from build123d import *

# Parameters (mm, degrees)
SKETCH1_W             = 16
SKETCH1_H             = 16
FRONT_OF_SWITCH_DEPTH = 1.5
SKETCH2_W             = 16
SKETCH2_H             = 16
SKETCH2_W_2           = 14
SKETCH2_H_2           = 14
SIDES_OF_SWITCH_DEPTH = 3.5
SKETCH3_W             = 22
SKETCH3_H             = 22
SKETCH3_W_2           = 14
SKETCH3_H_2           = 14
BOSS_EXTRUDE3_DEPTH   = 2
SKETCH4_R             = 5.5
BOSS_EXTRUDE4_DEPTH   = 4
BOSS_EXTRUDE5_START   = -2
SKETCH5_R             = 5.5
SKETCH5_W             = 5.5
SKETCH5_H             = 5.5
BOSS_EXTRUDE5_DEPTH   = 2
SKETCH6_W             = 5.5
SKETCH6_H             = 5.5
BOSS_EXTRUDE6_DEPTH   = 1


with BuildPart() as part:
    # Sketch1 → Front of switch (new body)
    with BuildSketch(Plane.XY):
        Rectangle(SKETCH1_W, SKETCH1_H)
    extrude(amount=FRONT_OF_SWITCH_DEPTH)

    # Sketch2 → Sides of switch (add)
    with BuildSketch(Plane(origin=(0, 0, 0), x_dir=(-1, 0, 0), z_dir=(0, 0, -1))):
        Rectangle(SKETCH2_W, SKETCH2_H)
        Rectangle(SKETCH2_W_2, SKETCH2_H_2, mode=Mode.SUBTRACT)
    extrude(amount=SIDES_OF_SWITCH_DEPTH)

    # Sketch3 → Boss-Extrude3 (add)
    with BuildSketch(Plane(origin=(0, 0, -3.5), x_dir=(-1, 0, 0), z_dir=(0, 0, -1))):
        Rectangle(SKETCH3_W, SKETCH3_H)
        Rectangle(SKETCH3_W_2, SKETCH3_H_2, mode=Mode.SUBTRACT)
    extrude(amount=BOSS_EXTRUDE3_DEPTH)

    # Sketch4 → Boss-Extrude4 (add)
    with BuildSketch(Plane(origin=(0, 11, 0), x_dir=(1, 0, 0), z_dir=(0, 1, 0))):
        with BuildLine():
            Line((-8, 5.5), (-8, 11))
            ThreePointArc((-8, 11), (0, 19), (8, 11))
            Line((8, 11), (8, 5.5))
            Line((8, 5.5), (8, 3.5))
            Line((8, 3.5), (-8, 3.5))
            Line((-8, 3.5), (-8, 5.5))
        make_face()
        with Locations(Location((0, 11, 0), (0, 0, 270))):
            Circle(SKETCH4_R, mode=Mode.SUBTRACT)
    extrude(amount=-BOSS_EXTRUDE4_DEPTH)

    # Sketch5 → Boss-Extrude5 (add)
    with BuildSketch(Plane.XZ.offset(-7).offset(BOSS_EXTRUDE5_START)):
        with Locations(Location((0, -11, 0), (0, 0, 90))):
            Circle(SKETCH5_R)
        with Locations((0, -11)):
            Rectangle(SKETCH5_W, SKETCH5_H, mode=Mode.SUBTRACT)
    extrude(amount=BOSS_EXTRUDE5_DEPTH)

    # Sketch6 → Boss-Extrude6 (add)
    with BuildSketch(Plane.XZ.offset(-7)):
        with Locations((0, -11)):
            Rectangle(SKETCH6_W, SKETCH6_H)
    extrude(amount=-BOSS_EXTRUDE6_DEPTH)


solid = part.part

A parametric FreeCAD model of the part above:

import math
import FreeCAD as App
import Part
import Sketcher
from FreeCAD import Vector
Q = App.Units.Quantity

doc = App.newDocument("Part")
body = doc.addObject("PartDesign::Body", "Body")

sketch1 = body.newObject("Sketcher::SketchObject", "Sketch")
sketch1.AttachmentSupport = (doc.getObject("XY_Plane"), [""])
sketch1.MapMode = "FlatFace"
sketch1.addGeometry([
    Part.LineSegment(Vector(-8, 8, 0), Vector(-8, -8, 0)),
    Part.LineSegment(Vector(-8, -8, 0), Vector(8, -8, 0)),
    Part.LineSegment(Vector(8, -8, 0), Vector(8, 8, 0)),
    Part.LineSegment(Vector(8, 8, 0), Vector(-8, 8, 0)),
], False)
sketch1.addConstraint([
    Sketcher.Constraint("Coincident", 0, 2, 1, 1),
    Sketcher.Constraint("Coincident", 1, 2, 2, 1),
    Sketcher.Constraint("Coincident", 2, 2, 3, 1),
    Sketcher.Constraint("Coincident", 3, 2, 0, 1),
    Sketcher.Constraint("Vertical", 0),
    Sketcher.Constraint("Horizontal", 1),
    Sketcher.Constraint("Vertical", 2),
    Sketcher.Constraint("Horizontal", 3),
    Sketcher.Constraint("Symmetric", 0, 2, 2, 2, -1, 1),
    Sketcher.Constraint("Equal", 3, 0),
    Sketcher.Constraint("DistanceX", 1, 1, 1, 2, Q("16 mm")),
])
pad1 = body.newObject("PartDesign::Pad", "Pad")
pad1.Profile = sketch1
pad1.Length = 1.5

sketch2 = body.newObject("Sketcher::SketchObject", "Sketch001")
sketch2.AttachmentSupport = (doc.getObject("XY_Plane"), [""])
sketch2.MapMode = "FlatFace"
sketch2.addGeometry([
    Part.LineSegment(Vector(8, 8, 0), Vector(8, -8, 0)),
    Part.LineSegment(Vector(8, -8, 0), Vector(-8, -8, 0)),
    Part.LineSegment(Vector(-8, -8, 0), Vector(-8, 8, 0)),
    Part.LineSegment(Vector(-8, 8, 0), Vector(8, 8, 0)),
    Part.LineSegment(Vector(-7, -7, 0), Vector(7, -7, 0)),
    Part.LineSegment(Vector(7, -7, 0), Vector(7, 7, 0)),
    Part.LineSegment(Vector(7, 7, 0), Vector(-7, 7, 0)),
    Part.LineSegment(Vector(-7, 7, 0), Vector(-7, -7, 0)),
], False)
sketch2.addConstraint([
    Sketcher.Constraint("Coincident", 0, 2, 1, 1),
    Sketcher.Constraint("Coincident", 1, 2, 2, 1),
    Sketcher.Constraint("Coincident", 2, 2, 3, 1),
    Sketcher.Constraint("Coincident", 3, 2, 0, 1),
    Sketcher.Constraint("Coincident", 4, 2, 5, 1),
    Sketcher.Constraint("Coincident", 5, 2, 6, 1),
    Sketcher.Constraint("Coincident", 6, 2, 7, 1),
    Sketcher.Constraint("Coincident", 7, 2, 4, 1),
    Sketcher.Constraint("Vertical", 0),
    Sketcher.Constraint("Horizontal", 1),
    Sketcher.Constraint("Vertical", 2),
    Sketcher.Constraint("Horizontal", 3),
    Sketcher.Constraint("Horizontal", 4),
    Sketcher.Constraint("Vertical", 5),
    Sketcher.Constraint("Horizontal", 6),
    Sketcher.Constraint("Vertical", 7),
    Sketcher.Constraint("Symmetric", 0, 2, 2, 2, -1, 1),
    Sketcher.Constraint("Symmetric", 4, 2, 6, 2, -1, 1),
    Sketcher.Constraint("Equal", 3, 0),
    Sketcher.Constraint("Equal", 6, 5),
    Sketcher.Constraint("DistanceX", 1, 2, 1, 1, Q("16 mm")),
    Sketcher.Constraint("DistanceX", 4, 1, 4, 2, Q("14 mm")),
])
pad2 = body.newObject("PartDesign::Pad", "Pad001")
pad2.Profile = sketch2
pad2.Length = 3.5
pad2.Reversed = True

sketch3 = body.newObject("Sketcher::SketchObject", "Sketch002")
sketch3.AttachmentSupport = (doc.getObject("XY_Plane"), [""])
sketch3.MapMode = "FlatFace"
sketch3.AttachmentOffset = App.Placement(Vector(0, 0, -3.5), App.Rotation())
sketch3.addGeometry([
    Part.LineSegment(Vector(11, 11, 0), Vector(11, -11, 0)),
    Part.LineSegment(Vector(11, -11, 0), Vector(-11, -11, 0)),
    Part.LineSegment(Vector(-11, -11, 0), Vector(-11, 11, 0)),
    Part.LineSegment(Vector(-11, 11, 0), Vector(11, 11, 0)),
    Part.LineSegment(Vector(-7, -7, 0), Vector(7, -7, 0)),
    Part.LineSegment(Vector(7, -7, 0), Vector(7, 7, 0)),
    Part.LineSegment(Vector(7, 7, 0), Vector(-7, 7, 0)),
    Part.LineSegment(Vector(-7, 7, 0), Vector(-7, -7, 0)),
], False)
sketch3.addConstraint([
    Sketcher.Constraint("Coincident", 0, 2, 1, 1),
    Sketcher.Constraint("Coincident", 1, 2, 2, 1),
    Sketcher.Constraint("Coincident", 2, 2, 3, 1),
    Sketcher.Constraint("Coincident", 3, 2, 0, 1),
    Sketcher.Constraint("Coincident", 4, 2, 5, 1),
    Sketcher.Constraint("Coincident", 5, 2, 6, 1),
    Sketcher.Constraint("Coincident", 6, 2, 7, 1),
    Sketcher.Constraint("Coincident", 7, 2, 4, 1),
    Sketcher.Constraint("Vertical", 0),
    Sketcher.Constraint("Horizontal", 1),
    Sketcher.Constraint("Vertical", 2),
    Sketcher.Constraint("Horizontal", 3),
    Sketcher.Constraint("Horizontal", 4),
    Sketcher.Constraint("Vertical", 5),
    Sketcher.Constraint("Horizontal", 6),
    Sketcher.Constraint("Vertical", 7),
    Sketcher.Constraint("Symmetric", 0, 2, 2, 2, -1, 1),
    Sketcher.Constraint("Symmetric", 4, 2, 6, 2, -1, 1),
    Sketcher.Constraint("Equal", 3, 0),
    Sketcher.Constraint("Equal", 6, 5),
    Sketcher.Constraint("DistanceX", 1, 2, 1, 1, Q("22 mm")),
    Sketcher.Constraint("DistanceX", 4, 1, 4, 2, Q("14 mm")),
])
pad3 = body.newObject("PartDesign::Pad", "Pad002")
pad3.Profile = sketch3
pad3.Length = 2
pad3.Reversed = True

sketch4 = body.newObject("Sketcher::SketchObject", "Sketch003")
sketch4.AttachmentSupport = (doc.getObject("XZ_Plane"), [""])
sketch4.MapMode = "FlatFace"
sketch4.AttachmentOffset = App.Placement(Vector(0, 0, -11), App.Rotation())
sketch4.addGeometry([
    Part.ArcOfCircle(Part.Circle(Vector(0, -11, 0), Vector(0, 0, 1), 8), math.radians(180), math.radians(360)),
    Part.LineSegment(Vector(-8, -11, 0), Vector(-8, -4, 0)),
    Part.LineSegment(Vector(-8, -4, 0), Vector(8, -4, 0)),
    Part.LineSegment(Vector(8, -4, 0), Vector(8, -11, 0)),
    Part.Circle(Vector(0, -11, 0), Vector(0, 0, 1), 6),
], False)
sketch4.addConstraint([
    Sketcher.Constraint("Tangent", 0, 1, 1, 1),
    Sketcher.Constraint("Coincident", 1, 2, 2, 1),
    Sketcher.Constraint("Coincident", 2, 2, 3, 1),
    Sketcher.Constraint("Tangent", 3, 2, 0, 2),
    Sketcher.Constraint("Vertical", 1),
    Sketcher.Constraint("Horizontal", 2),
    Sketcher.Constraint("Vertical", 3),
    Sketcher.Constraint("Coincident", 4, 3, 0, 3),
    Sketcher.Constraint("PointOnObject", 0, 3, -2),
    Sketcher.Constraint("Diameter", 4, Q("11 mm")),
    Sketcher.Constraint("Radius", 0, Q("8 mm")),
    Sketcher.Constraint("DistanceY", 1, 1, 1, 2, Q("7.5 mm")),
    Sketcher.Constraint("DistanceY", 0, 3, -1, 1, Q("11 mm")),
])
pad4 = body.newObject("PartDesign::Pad", "Pad003")
pad4.Profile = sketch4
pad4.Length = 4

sketch5 = body.newObject("Sketcher::SketchObject", "Sketch004")
sketch5.AttachmentSupport = (doc.getObject("XZ_Plane"), [""])
sketch5.MapMode = "FlatFace"
sketch5.AttachmentOffset = App.Placement(Vector(0, 0, -9), App.Rotation())
sketch5.addGeometry([
    Part.Circle(Vector(0, -11, 0), Vector(0, 0, 1), 6),
    Part.LineSegment(Vector(3, -14, 0), Vector(-3, -14, 0)),
    Part.LineSegment(Vector(-3, -14, 0), Vector(-3, -8, 0)),
    Part.LineSegment(Vector(-3, -8, 0), Vector(3, -8, 0)),
    Part.LineSegment(Vector(3, -8, 0), Vector(3, -14, 0)),
], False)
sketch5.addConstraint([
    Sketcher.Constraint("Coincident", 1, 2, 2, 1),
    Sketcher.Constraint("Coincident", 2, 2, 3, 1),
    Sketcher.Constraint("Coincident", 3, 2, 4, 1),
    Sketcher.Constraint("Coincident", 4, 2, 1, 1),
    Sketcher.Constraint("Horizontal", 1),
    Sketcher.Constraint("Vertical", 2),
    Sketcher.Constraint("Horizontal", 3),
    Sketcher.Constraint("Vertical", 4),
    Sketcher.Constraint("PointOnObject", 0, 3, -2),
    Sketcher.Constraint("Equal", 3, 2),
    Sketcher.Constraint("Diameter", 0, Q("11 mm")),
    Sketcher.Constraint("DistanceX", 1, 2, 1, 1, Q("5.5 mm")),
    Sketcher.Constraint("DistanceY", 0, 3, -1, 1, Q("11 mm")),
    Sketcher.Constraint("DistanceX", 1, 2, -1, 1, Q("2.75 mm")),
    Sketcher.Constraint("DistanceY", 1, 2, -1, 1, Q("13.75 mm")),
])
pad5 = body.newObject("PartDesign::Pad", "Pad004")
pad5.Profile = sketch5
pad5.Length = 2

sketch6 = body.newObject("Sketcher::SketchObject", "Sketch005")
sketch6.AttachmentSupport = (doc.getObject("XZ_Plane"), [""])
sketch6.MapMode = "FlatFace"
sketch6.AttachmentOffset = App.Placement(Vector(0, 0, -7), App.Rotation())
sketch6.addGeometry([
    Part.LineSegment(Vector(-3, -8, 0), Vector(-3, -14, 0)),
    Part.LineSegment(Vector(-3, -14, 0), Vector(3, -14, 0)),
    Part.LineSegment(Vector(3, -14, 0), Vector(3, -8, 0)),
    Part.LineSegment(Vector(3, -8, 0), Vector(-3, -8, 0)),
], False)
sketch6.addConstraint([
    Sketcher.Constraint("Coincident", 0, 2, 1, 1),
    Sketcher.Constraint("Coincident", 1, 2, 2, 1),
    Sketcher.Constraint("Coincident", 2, 2, 3, 1),
    Sketcher.Constraint("Coincident", 3, 2, 0, 1),
    Sketcher.Constraint("Vertical", 0),
    Sketcher.Constraint("Horizontal", 1),
    Sketcher.Constraint("Vertical", 2),
    Sketcher.Constraint("Horizontal", 3),
    Sketcher.Constraint("Equal", 3, 0),
    Sketcher.Constraint("DistanceX", 1, 1, 1, 2, Q("5.5 mm")),
    Sketcher.Constraint("DistanceX", 0, 2, -1, 1, Q("2.75 mm")),
    Sketcher.Constraint("DistanceY", 0, 2, -1, 1, Q("13.75 mm")),
])
pad6 = body.newObject("PartDesign::Pad", "Pad005")
pad6.Profile = sketch6
pad6.Length = 1
pad6.Reversed = True

doc.recompute()
